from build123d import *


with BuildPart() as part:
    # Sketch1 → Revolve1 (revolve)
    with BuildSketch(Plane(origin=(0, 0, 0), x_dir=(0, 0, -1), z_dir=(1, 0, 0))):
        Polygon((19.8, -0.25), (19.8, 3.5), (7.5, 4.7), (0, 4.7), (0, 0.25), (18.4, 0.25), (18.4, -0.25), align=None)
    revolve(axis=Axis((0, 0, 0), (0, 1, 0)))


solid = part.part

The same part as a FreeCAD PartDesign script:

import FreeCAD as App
import Part
import Sketcher
Q = App.Units.Quantity

doc = App.newDocument("Part")
body = doc.addObject("PartDesign::Body", "Body")

# Sketch on YZ plane
sketch1 = doc.addObject("Sketcher::SketchObject", "Sketch")
body.addObject(sketch1)
sketch1.AttachmentSupport = (doc.YZ_Plane, [""])
sketch1.MapMode = "FlatFace"
sketch1.addGeometry([
    Part.LineSegment(App.Vector(-0.2, -19.8, 0), App.Vector(3.5, -19.8, 0)),  # 0
    Part.LineSegment(App.Vector(3.5, -19.8, 0), App.Vector(4.7, -7.5, 0)),  # 1
    Part.LineSegment(App.Vector(4.7, -7.5, 0), App.Vector(4.7, 0, 0)),  # 2
    Part.LineSegment(App.Vector(4.7, 0, 0), App.Vector(0.2, 0, 0)),  # 3
    Part.LineSegment(App.Vector(0.2, 0, 0), App.Vector(0.2, -18.4, 0)),  # 4
    Part.LineSegment(App.Vector(0.2, -18.4, 0), App.Vector(-0.2, -18.4, 0)),  # 5
    Part.LineSegment(App.Vector(-0.2, -18.4, 0), App.Vector(-0.2, -19.8, 0)),  # 6
], False)
sketch1.addConstraint([
    Sketcher.Constraint("Coincident", 0, 2, 1, 1),
    Sketcher.Constraint("Coincident", 1, 2, 2, 1),
    Sketcher.Constraint("Coincident", 2, 2, 3, 1),
    Sketcher.Constraint("Coincident", 3, 2, 4, 1),
    Sketcher.Constraint("Coincident", 4, 2, 5, 1),
    Sketcher.Constraint("Coincident", 5, 2, 6, 1),
    Sketcher.Constraint("Coincident", 6, 2, 0, 1),
    Sketcher.Constraint("Horizontal", 0),
    Sketcher.Constraint("Vertical", 2),
    Sketcher.Constraint("Horizontal", 3),
    Sketcher.Constraint("Vertical", 4),
    Sketcher.Constraint("Horizontal", 5),
    Sketcher.Constraint("Vertical", 6),
    Sketcher.Constraint("PointOnObject", 2, 2, -1),
    Sketcher.Constraint("DistanceX", 5, 2, 5, 1, Q("0.5 mm")),
    Sketcher.Constraint("DistanceY", 2, 1, 2, 2, Q("7.5 mm")),
    Sketcher.Constraint("DistanceY", 4, 2, 4, 1, Q("18.4 mm")),
    Sketcher.Constraint("DistanceY", 6, 2, 6, 1, Q("1.4 mm")),
    Sketcher.Constraint("DistanceX", 0, 1, 0, 2, Q("3.75 mm")),
    Sketcher.Constraint("DistanceX", 3, 2, 3, 1, Q("4.45 mm")),
    Sketcher.Constraint("DistanceX", -1, 1, 0, 2, Q("3.5 mm")),
])
revolution = doc.addObject("PartDesign::Revolution", "Revolution")
body.addObject(revolution)
revolution.Profile = sketch1
revolution.ReferenceAxis = (sketch1, ["H_Axis"])
revolution.Angle = 360

doc.recompute()
